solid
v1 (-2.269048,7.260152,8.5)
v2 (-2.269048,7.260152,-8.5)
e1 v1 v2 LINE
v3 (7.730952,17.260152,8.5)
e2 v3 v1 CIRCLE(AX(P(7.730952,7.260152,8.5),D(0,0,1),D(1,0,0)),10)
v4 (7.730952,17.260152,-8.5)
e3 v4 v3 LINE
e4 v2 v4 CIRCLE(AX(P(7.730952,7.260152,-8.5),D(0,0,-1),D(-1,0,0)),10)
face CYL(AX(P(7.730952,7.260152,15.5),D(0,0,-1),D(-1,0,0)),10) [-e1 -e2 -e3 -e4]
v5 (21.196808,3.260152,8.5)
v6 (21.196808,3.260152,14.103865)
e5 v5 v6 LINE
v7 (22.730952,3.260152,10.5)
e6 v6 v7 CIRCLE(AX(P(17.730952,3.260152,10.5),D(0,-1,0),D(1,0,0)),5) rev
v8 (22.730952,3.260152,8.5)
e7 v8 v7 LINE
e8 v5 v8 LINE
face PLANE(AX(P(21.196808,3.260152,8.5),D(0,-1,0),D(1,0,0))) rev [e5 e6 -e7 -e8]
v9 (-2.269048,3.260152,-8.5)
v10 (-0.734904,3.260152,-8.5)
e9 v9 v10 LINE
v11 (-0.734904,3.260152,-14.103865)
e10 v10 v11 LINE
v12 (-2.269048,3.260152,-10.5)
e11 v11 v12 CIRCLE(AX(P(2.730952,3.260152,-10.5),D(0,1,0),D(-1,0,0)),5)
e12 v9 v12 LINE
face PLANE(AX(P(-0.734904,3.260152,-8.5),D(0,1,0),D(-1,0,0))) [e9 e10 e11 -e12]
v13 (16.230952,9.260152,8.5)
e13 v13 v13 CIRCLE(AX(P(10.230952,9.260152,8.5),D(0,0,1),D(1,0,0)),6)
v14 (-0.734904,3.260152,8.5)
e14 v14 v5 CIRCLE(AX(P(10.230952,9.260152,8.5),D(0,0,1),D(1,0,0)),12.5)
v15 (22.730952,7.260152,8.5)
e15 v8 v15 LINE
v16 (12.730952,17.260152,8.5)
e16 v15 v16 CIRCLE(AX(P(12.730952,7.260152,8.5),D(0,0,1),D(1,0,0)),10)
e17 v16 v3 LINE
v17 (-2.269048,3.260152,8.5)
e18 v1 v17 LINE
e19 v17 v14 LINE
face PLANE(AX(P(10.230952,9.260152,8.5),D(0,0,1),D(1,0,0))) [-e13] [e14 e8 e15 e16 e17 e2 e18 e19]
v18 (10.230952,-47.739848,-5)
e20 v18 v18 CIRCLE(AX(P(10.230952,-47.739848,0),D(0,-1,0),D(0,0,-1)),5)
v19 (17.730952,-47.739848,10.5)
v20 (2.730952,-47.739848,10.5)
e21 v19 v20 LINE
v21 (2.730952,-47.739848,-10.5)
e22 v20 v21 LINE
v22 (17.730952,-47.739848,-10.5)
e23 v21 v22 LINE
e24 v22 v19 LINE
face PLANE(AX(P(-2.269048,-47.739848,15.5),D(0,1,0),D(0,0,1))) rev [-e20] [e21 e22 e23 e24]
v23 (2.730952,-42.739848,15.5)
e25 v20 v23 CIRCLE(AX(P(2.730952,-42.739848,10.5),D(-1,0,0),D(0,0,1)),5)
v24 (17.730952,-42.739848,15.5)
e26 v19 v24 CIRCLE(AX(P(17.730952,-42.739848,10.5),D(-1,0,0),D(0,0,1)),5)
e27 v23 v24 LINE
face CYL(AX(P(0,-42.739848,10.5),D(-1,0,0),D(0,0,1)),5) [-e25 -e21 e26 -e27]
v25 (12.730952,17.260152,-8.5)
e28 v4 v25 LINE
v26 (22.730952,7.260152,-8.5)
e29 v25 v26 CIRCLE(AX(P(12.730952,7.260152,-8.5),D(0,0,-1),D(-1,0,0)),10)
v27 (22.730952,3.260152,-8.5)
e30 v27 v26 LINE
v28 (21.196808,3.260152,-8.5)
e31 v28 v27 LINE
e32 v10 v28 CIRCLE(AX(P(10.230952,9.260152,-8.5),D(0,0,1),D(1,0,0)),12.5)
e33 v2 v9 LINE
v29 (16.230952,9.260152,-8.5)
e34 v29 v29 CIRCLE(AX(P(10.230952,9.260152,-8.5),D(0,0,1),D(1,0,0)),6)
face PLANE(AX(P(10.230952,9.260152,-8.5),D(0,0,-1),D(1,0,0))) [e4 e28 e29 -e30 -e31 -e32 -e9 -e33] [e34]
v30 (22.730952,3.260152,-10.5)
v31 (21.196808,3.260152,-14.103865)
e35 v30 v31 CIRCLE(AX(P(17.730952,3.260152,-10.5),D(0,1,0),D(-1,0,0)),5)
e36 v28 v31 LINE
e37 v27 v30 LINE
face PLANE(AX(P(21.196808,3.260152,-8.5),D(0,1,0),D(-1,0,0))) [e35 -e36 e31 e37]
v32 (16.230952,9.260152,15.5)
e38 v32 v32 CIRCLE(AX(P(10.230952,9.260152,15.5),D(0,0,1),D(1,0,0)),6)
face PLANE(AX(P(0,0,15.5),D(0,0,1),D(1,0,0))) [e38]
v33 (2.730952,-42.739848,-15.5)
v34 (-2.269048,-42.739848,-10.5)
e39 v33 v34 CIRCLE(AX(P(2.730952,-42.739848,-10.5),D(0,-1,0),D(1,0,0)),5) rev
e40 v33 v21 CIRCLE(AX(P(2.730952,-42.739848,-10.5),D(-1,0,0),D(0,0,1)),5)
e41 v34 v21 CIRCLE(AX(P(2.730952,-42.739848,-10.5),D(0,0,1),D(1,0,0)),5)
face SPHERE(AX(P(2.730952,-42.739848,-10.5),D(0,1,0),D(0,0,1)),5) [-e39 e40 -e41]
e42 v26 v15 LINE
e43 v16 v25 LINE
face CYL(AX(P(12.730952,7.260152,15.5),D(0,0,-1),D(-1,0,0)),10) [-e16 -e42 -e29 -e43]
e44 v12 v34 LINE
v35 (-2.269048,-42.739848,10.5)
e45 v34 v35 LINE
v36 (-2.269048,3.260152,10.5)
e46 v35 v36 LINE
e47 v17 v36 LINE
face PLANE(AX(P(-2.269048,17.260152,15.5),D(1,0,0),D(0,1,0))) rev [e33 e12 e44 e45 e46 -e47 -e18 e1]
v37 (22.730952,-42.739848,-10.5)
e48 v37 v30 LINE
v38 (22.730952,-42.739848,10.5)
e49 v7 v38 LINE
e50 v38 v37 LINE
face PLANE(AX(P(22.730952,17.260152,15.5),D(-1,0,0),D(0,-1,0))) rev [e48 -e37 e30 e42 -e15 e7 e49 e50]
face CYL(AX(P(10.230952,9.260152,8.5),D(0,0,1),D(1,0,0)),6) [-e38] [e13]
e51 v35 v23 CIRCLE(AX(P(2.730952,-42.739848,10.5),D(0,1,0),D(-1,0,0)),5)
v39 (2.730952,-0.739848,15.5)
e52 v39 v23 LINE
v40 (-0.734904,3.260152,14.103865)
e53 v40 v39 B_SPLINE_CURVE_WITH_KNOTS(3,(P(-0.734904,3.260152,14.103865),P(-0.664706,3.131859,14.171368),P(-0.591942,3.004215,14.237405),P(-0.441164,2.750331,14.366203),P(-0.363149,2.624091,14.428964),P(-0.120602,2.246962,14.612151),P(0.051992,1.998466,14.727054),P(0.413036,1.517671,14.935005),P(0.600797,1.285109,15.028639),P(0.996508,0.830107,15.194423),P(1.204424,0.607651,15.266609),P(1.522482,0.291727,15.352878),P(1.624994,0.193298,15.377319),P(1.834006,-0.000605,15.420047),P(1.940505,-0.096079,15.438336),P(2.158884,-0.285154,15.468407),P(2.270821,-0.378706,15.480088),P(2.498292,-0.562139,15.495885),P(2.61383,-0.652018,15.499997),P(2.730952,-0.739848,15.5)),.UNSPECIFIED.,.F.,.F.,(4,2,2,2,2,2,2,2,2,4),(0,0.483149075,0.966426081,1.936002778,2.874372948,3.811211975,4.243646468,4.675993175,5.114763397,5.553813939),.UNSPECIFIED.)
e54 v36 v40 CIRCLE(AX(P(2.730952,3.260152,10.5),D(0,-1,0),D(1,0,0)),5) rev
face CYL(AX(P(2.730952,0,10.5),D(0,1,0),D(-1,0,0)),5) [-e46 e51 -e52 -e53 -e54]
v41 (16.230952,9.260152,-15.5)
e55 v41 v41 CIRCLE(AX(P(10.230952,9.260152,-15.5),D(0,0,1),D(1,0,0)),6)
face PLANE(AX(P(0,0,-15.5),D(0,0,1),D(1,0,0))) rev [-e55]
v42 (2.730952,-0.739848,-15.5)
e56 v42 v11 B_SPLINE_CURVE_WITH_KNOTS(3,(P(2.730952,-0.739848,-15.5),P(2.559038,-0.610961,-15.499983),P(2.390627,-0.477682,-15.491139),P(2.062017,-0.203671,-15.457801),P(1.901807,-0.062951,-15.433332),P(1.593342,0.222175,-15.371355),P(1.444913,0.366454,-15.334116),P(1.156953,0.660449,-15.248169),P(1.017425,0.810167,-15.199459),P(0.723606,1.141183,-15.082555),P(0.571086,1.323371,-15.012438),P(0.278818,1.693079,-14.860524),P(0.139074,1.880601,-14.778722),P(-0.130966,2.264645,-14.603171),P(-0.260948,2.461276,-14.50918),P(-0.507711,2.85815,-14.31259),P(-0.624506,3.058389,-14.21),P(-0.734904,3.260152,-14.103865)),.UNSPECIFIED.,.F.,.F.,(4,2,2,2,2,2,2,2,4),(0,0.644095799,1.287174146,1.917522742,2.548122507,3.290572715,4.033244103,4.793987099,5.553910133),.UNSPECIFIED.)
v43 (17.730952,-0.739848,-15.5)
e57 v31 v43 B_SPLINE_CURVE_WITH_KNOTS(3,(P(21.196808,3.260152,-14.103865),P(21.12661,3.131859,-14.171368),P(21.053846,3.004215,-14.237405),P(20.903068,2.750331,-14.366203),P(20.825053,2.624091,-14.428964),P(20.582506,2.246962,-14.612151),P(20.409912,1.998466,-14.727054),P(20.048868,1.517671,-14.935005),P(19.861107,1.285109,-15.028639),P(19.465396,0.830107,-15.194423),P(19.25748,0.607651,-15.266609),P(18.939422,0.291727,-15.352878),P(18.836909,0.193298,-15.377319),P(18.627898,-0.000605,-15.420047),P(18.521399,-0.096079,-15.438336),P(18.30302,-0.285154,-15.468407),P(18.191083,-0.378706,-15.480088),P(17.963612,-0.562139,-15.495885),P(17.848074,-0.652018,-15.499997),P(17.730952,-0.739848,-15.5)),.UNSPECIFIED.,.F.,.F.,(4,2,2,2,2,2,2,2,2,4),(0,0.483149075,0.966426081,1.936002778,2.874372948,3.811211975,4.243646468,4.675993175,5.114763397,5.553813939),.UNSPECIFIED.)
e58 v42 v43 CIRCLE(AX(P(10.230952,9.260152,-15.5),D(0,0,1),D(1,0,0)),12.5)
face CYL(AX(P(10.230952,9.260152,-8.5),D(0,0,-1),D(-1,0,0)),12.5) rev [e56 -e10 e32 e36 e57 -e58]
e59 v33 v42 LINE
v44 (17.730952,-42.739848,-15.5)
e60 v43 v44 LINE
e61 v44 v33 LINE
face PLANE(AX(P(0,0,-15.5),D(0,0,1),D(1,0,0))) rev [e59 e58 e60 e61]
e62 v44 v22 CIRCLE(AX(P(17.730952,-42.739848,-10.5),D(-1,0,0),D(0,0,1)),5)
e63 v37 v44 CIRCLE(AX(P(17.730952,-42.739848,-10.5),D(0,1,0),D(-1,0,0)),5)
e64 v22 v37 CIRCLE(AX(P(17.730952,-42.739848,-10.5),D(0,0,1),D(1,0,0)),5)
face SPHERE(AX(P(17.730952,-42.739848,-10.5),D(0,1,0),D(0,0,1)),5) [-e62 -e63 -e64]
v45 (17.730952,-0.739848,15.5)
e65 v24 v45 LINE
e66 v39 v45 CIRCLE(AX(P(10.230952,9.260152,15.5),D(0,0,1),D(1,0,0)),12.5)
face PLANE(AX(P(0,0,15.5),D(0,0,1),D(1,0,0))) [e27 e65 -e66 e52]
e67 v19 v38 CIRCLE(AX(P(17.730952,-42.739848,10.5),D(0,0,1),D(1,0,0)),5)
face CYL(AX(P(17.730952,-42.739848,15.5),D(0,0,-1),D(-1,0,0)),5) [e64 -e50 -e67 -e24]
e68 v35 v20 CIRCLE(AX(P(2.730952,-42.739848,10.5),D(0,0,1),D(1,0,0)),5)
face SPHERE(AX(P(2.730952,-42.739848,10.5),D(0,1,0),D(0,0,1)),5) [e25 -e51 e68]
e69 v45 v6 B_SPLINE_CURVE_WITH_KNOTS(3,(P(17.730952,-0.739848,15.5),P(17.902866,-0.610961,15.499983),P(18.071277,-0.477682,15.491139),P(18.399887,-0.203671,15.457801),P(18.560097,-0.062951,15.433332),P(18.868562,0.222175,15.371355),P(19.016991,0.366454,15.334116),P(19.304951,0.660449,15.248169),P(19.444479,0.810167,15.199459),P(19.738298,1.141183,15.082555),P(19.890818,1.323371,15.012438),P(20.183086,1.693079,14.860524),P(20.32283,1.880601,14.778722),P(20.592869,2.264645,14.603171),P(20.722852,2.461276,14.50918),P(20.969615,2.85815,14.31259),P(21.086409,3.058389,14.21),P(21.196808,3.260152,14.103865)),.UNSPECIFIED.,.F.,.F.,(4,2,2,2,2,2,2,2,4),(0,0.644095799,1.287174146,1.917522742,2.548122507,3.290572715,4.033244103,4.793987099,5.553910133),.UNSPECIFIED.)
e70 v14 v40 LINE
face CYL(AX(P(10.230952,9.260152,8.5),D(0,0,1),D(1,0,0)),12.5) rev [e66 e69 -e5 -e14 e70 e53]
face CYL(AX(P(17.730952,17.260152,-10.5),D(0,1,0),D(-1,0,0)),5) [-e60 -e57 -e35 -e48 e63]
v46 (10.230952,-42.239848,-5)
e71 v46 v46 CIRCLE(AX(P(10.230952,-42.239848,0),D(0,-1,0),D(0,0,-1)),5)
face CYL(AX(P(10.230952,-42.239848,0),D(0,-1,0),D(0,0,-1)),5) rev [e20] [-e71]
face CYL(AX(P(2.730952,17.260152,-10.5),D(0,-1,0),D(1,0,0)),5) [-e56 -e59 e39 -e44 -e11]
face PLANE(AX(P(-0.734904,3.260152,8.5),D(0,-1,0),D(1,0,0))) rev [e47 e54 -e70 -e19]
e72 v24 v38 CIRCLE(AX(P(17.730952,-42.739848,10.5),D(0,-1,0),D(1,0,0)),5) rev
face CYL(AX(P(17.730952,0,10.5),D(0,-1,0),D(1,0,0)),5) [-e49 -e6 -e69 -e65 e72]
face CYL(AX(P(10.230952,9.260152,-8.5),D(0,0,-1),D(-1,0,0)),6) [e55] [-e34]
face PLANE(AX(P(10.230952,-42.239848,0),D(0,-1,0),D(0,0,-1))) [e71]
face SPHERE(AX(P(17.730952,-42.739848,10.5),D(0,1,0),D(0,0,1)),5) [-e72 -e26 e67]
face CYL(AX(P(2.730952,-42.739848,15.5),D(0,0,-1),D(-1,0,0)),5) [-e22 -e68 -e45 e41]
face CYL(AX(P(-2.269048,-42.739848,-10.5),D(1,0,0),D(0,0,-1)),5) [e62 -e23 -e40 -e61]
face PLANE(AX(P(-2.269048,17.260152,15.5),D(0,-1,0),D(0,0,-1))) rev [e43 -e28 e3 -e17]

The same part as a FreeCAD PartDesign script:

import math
import FreeCAD as App
import Part
import Sketcher

V = App.Vector
Q = App.Units.Quantity


def edges_at(feature, points):
    """Names of the edges that pass closest to the given points."""
    edges = feature.Shape.Edges
    near = lambda p: min(range(len(edges)), key=lambda i: edges[i].distToShape(Part.Vertex(*p))[0])
    return sorted({f"Edge{near(p) + 1}" for p in points})


def add_polygon(sketch, points):
    """Adds a closed chain of lines whose ends are joined by coincident constraints."""
    first, n = sketch.GeometryCount, len(points)
    for a, b in zip(points, points[1:] + points[:1]):
        sketch.addGeometry(Part.LineSegment(App.Vector(*a, 0), App.Vector(*b, 0)), False)
    for i in range(n):
        sketch.addConstraint(Sketcher.Constraint("Coincident", first + i, 2, first + (i + 1) % n, 1))

doc = App.newDocument("Part")
params = doc.addObject("Spreadsheet::Sheet", "Params")
for row, (alias, value) in enumerate([
    ("sketch1_width", "25 mm"),
    ("sketch1_height", "65 mm"),
    ("pad1_length", "31 mm"),
    ("sketch2_diameter", "12 mm"),
    ("sketch2_radius", "12.5 mm"),
    ("sketch2_width", "25 mm"),
    ("pocket1_length", "7 mm"),
    ("fillet_radius", "10 mm"),
    ("fillet2_radius", "5 mm"),
    ("sketch3_diameter", "10 mm"),
    ("pocket2_length", "5.5 mm"),
    ("fillet3_radius", "5 mm"),
], start=1):
    params.set(f"A{row}", alias)
    params.set(f"B{row}", "=" + value)
    params.setAlias(f"B{row}", alias)

body = doc.addObject("PartDesign::Body", "Body")

# Sketch on XY plane
sketch1 = body.newObject("Sketcher::SketchObject", "Sketch")
sketch1.AttachmentSupport = (doc.getObject("XY_Plane"), [""])
sketch1.MapMode = "FlatFace"
add_polygon(sketch1, [(-2, 17), (-2, -48), (23, -48), (23, 17)])  # lines 0-3
sketch1.addConstraint([
    Sketcher.Constraint("Vertical", 0),
    Sketcher.Constraint("Horizontal", 1),
    Sketcher.Constraint("Vertical", 2),
    Sketcher.Constraint("Horizontal", 3),
    Sketcher.Constraint("DistanceX", 1, 1, 1, 2, Q("25 mm")),
    Sketcher.Constraint("DistanceY", 0, 2, 0, 1, Q("65 mm")),
    Sketcher.Constraint("DistanceX", 0, 2, -1, 1, Q("2.269048 mm")),
    Sketcher.Constraint("DistanceY", 0, 2, -1, 1, Q("47.739848 mm")),
])
sketch1.setExpression("Constraints[8]", "Params.sketch1_width")
sketch1.setExpression("Constraints[9]", "Params.sketch1_height")
pad1 = body.newObject("PartDesign::Pad", "Pad")
pad1.Profile = sketch1
pad1.setExpression("Length", "Params.pad1_length")
pad1.Midplane = True

# Sketch on XY plane
sketch2 = body.newObject("Sketcher::SketchObject", "Sketch001")
sketch2.AttachmentSupport = (doc.getObject("XY_Plane"), [""])
sketch2.MapMode = "FlatFace"
sketch2.AttachmentOffset = App.Placement(V(0, 0, 15.5), App.Rotation())
sketch2.addGeometry([
    Part.LineSegment(V(22.7, 26.1, 0), V(-2.3, 26.1, 0)),  # 0
    Part.LineSegment(V(-2.3, 26.1, 0), V(-2.3, 3.3, 0)),  # 1
    Part.LineSegment(V(-2.3, 3.3, 0), V(-0.7, 3.3, 0)),  # 2
    Part.ArcOfCircle(Part.Circle(V(10.2, 9.3, 0), V(0, 0, 1), 12.5), math.radians(-151), math.radians(-29)),  # 3
    Part.LineSegment(V(21.2, 3.3, 0), V(22.7, 3.3, 0)),  # 4
    Part.LineSegment(V(22.7, 3.3, 0), V(22.7, 26.1, 0)),  # 5
    Part.Circle(V(10.2, 9.3, 0), V(0, 0, 1), 6),  # 6
], False)
sketch2.addConstraint([
    Sketcher.Constraint("Coincident", 0, 2, 1, 1),
    Sketcher.Constraint("Coincident", 1, 2, 2, 1),
    Sketcher.Constraint("Coincident", 2, 2, 3, 1),
    Sketcher.Constraint("Coincident", 3, 2, 4, 1),
    Sketcher.Constraint("Coincident", 4, 2, 5, 1),
    Sketcher.Constraint("Coincident", 5, 2, 0, 1),
    Sketcher.Constraint("Horizontal", 0),
    Sketcher.Constraint("Vertical", 1),
    Sketcher.Constraint("Horizontal", 2),
    Sketcher.Constraint("Horizontal", 4),
    Sketcher.Constraint("Vertical", 5),
    Sketcher.Constraint("Coincident", 6, 3, 3, 3),
    Sketcher.Constraint("Horizontal", 2, 2, 3, 2),
    Sketcher.Constraint("Equal", 2, 4),
    Sketcher.Constraint("Diameter", 6, Q("12 mm")),
    Sketcher.Constraint("Radius", 3, Q("12.5 mm")),
    Sketcher.Constraint("DistanceX", 0, 2, 0, 1, Q("25 mm")),
    Sketcher.Constraint("DistanceY", 1, 2, 3, 3, Q("6 mm")),
    Sketcher.Constraint("DistanceY", 1, 2, 1, 1, Q("22.798169 mm")),
    Sketcher.Constraint("DistanceX", -1, 1, 3, 3, Q("10.230952 mm")),
    Sketcher.Constraint("DistanceY", -1, 1, 3, 3, Q("9.260152 mm")),
])
sketch2.setExpression("Constraints[14]", "Params.sketch2_diameter")
sketch2.setExpression("Constraints[15]", "Params.sketch2_radius")
sketch2.setExpression("Constraints[16]", "Params.sketch2_width")
pocket1 = body.newObject("PartDesign::Pocket", "Pocket")
pocket1.Profile = sketch2
pocket1.setExpression("Length", "Params.pocket1_length")
doc.recompute()

mirrored = body.newObject("PartDesign::Mirrored", "Mirrored")
mirrored.Originals = [pocket1]
mirrored.MirrorPlane = (doc.getObject("XY_Plane"), [""])
body.Tip = mirrored
doc.recompute()

fillet = body.newObject("PartDesign::Fillet", "Fillet")
fillet.Base = (mirrored, edges_at(mirrored, [(-2.269, 17.26, 0), (22.731, 17.26, 0)]))
fillet.setExpression("Radius", "Params.fillet_radius")
doc.recompute()

fillet2 = body.newObject("PartDesign::Fillet", "Fillet001")
fillet2.Base = (fillet, edges_at(fillet, [
    (22.731, -22.24, -15.5),
    (22.731, -22.24, 15.5),
    (-2.269, -22.24, 15.5),
    (-2.269, -22.24, -15.5),
]))
fillet2.setExpression("Radius", "Params.fillet2_radius")

# Sketch on XZ plane
sketch3 = body.newObject("Sketcher::SketchObject", "Sketch002")
sketch3.AttachmentSupport = (doc.getObject("XZ_Plane"), [""])
sketch3.MapMode = "FlatFace"
sketch3.AttachmentOffset = App.Placement(V(0, 0, 47.739848), App.Rotation())
sketch3.addGeometry(Part.Circle(V(10, 0, 0), V(0, 0, 1), 5), False)
sketch3.addConstraint([
    Sketcher.Constraint("PointOnObject", 0, 3, -1),
    Sketcher.Constraint("Diameter", 0, Q("10 mm")),
    Sketcher.Constraint("DistanceX", -1, 1, 0, 3, Q("10.230952 mm")),
])
sketch3.setExpression("Constraints[1]", "Params.sketch3_diameter")
pocket2 = body.newObject("PartDesign::Pocket", "Pocket001")
pocket2.Profile = sketch3
pocket2.setExpression("Length", "Params.pocket2_length")
doc.recompute()

fillet3 = body.newObject("PartDesign::Fillet", "Fillet002")
fillet3.Base = (pocket2, edges_at(pocket2, [
    (22.731, -47.74, 0),
    (10.231, -47.74, -15.5),
    (10.231, -47.74, 15.5),
    (-2.269, -47.74, 0),
    (-0.805, -47.74, -14.036),
    (-0.805, -47.74, 14.036),
    (21.266, -47.74, 14.036),
    (21.266, -47.74, -14.036),
]))
fillet3.setExpression("Radius", "Params.fillet3_radius")

doc.recompute()
